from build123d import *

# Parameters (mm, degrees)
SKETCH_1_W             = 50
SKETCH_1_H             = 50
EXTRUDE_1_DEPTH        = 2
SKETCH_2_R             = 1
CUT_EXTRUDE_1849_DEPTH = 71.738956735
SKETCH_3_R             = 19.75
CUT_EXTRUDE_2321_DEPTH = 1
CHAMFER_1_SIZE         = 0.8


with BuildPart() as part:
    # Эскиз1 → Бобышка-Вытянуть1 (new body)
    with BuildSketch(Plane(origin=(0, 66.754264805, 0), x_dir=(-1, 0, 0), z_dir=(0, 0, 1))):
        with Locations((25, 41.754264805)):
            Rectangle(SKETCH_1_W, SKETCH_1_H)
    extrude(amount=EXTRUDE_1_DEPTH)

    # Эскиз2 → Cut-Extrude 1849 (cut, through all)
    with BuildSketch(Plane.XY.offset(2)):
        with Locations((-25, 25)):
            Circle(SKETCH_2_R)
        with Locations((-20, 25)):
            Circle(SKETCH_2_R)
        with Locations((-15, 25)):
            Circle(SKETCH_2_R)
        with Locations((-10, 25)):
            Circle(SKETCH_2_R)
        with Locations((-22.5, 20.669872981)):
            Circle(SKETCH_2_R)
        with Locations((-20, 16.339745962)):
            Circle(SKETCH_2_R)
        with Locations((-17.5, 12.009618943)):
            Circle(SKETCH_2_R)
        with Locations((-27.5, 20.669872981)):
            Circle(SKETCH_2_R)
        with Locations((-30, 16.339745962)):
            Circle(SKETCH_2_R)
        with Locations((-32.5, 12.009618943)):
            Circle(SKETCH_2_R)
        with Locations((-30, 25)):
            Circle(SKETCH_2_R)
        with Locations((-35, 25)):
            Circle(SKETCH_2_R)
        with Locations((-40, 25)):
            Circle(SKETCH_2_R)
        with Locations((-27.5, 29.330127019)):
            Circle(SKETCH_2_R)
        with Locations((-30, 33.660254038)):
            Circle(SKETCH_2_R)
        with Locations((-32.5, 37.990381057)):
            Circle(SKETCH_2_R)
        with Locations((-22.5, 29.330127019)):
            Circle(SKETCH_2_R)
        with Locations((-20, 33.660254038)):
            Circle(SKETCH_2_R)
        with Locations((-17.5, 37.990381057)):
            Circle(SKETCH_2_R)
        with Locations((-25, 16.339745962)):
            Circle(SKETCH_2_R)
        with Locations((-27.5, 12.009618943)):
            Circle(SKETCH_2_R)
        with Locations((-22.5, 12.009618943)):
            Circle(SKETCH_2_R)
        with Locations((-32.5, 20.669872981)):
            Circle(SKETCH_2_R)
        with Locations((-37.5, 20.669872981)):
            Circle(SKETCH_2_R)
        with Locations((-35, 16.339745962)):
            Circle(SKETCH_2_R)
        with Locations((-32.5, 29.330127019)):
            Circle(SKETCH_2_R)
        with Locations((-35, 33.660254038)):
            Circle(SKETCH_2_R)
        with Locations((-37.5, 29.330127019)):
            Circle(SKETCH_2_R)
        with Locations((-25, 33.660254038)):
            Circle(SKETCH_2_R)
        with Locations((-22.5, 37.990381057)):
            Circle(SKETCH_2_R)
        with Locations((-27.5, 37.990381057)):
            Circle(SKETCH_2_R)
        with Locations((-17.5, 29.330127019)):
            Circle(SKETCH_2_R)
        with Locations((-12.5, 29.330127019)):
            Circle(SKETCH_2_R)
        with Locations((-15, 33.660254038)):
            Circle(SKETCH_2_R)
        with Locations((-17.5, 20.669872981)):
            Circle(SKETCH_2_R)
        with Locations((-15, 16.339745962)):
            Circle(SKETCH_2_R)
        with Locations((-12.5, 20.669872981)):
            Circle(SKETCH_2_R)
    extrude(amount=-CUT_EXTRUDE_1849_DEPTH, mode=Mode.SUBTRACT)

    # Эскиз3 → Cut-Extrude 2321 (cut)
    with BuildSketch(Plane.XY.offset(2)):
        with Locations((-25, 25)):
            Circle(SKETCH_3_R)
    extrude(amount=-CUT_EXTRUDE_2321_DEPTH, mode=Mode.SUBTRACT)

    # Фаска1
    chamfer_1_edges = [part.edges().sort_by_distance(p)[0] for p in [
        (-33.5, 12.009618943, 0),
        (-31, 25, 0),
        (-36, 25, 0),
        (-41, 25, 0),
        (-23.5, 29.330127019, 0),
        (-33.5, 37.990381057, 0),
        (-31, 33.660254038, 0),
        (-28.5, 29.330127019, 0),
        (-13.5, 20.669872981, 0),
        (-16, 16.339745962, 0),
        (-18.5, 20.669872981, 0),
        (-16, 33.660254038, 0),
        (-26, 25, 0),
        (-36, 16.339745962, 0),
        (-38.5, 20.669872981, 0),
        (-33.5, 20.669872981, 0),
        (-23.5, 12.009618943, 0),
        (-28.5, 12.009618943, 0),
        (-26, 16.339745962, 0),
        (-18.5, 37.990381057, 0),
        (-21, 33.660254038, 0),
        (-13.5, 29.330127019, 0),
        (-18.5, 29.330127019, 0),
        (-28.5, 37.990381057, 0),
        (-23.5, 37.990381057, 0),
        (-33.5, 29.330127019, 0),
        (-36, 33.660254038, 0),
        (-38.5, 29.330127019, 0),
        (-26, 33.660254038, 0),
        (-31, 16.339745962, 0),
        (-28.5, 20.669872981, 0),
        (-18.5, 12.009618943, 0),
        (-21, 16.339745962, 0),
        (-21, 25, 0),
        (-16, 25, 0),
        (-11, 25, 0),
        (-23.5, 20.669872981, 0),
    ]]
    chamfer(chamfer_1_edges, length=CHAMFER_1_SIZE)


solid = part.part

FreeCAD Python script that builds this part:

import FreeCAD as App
import Part
import Sketcher

V = App.Vector


def edges_at(feature, points):
    """Names of the edges that pass closest to the given points."""
    edges = feature.Shape.Edges
    near = lambda p: min(range(len(edges)), key=lambda i: edges[i].distToShape(Part.Vertex(*p))[0])
    return sorted({f"Edge{near(p) + 1}" for p in points})

doc = App.newDocument("Part")
body = doc.addObject("PartDesign::Body", "Body")

sketch1 = body.newObject("Sketcher::SketchObject", "Sketch")
sketch1.AttachmentSupport = (doc.getObject("XY_Plane"), [""])
sketch1.MapMode = "FlatFace"
sketch1.addGeometry(Part.LineSegment(V(0, 0, 0), V(0, 50, 0)), False)
sketch1.addGeometry(Part.LineSegment(V(0, 50, 0), V(-50, 50, 0)), False)
sketch1.addGeometry(Part.LineSegment(V(-50, 50, 0), V(-50, 0, 0)), False)
sketch1.addGeometry(Part.LineSegment(V(-50, 0, 0), V(0, 0, 0)), False)
sketch1.addConstraint(Sketcher.Constraint("Coincident", 0, 2, 1, 1))
sketch1.addConstraint(Sketcher.Constraint("Coincident", 1, 2, 2, 1))
sketch1.addConstraint(Sketcher.Constraint("Coincident", 2, 2, 3, 1))
sketch1.addConstraint(Sketcher.Constraint("Coincident", 3, 2, 0, 1))
sketch1.addConstraint(Sketcher.Constraint("Vertical", 0))
sketch1.addConstraint(Sketcher.Constraint("Horizontal", 1))
sketch1.addConstraint(Sketcher.Constraint("Vertical", 2))
sketch1.addConstraint(Sketcher.Constraint("Horizontal", 3))
sketch1.addConstraint(Sketcher.Constraint("Coincident", 3, 2, -1, 1))
sketch1.addConstraint(Sketcher.Constraint("Equal", 3, 0))
sketch1.addConstraint(Sketcher.Constraint("DistanceX", 1, 2, 1, 1, 50.0))
pad1 = body.newObject("PartDesign::Pad", "Pad")
pad1.Profile = sketch1
pad1.Length = 2

sketch2 = body.newObject("Sketcher::SketchObject", "Sketch001")
sketch2.AttachmentSupport = (doc.getObject("XY_Plane"), [""])
sketch2.MapMode = "FlatFace"
sketch2.AttachmentOffset = App.Placement(V(0, 0, 2), App.Rotation())
sketch2.addGeometry(Part.Circle(V(-25, 25, 0), V(0, 0, 1), 1), False)
sketch2.addGeometry(Part.Circle(V(-20, 25, 0), V(0, 0, 1), 1), False)
sketch2.addGeometry(Part.Circle(V(-15, 25, 0), V(0, 0, 1), 1), False)
sketch2.addGeometry(Part.Circle(V(-10, 25, 0), V(0, 0, 1), 1), False)
sketch2.addGeometry(Part.Circle(V(-22.5, 20.7, 0), V(0, 0, 1), 1), False)
sketch2.addGeometry(Part.Circle(V(-20, 16.3, 0), V(0, 0, 1), 1), False)
sketch2.addGeometry(Part.Circle(V(-17.5, 12, 0), V(0, 0, 1), 1), False)
sketch2.addGeometry(Part.Circle(V(-27.5, 20.7, 0), V(0, 0, 1), 1), False)
sketch2.addGeometry(Part.Circle(V(-30, 16.3, 0), V(0, 0, 1), 1), False)
sketch2.addGeometry(Part.Circle(V(-32.5, 12, 0), V(0, 0, 1), 1), False)
sketch2.addGeometry(Part.Circle(V(-30, 25, 0), V(0, 0, 1), 1), False)
sketch2.addGeometry(Part.Circle(V(-35, 25, 0), V(0, 0, 1), 1), False)
sketch2.addGeometry(Part.Circle(V(-40, 25, 0), V(0, 0, 1), 1), False)
sketch2.addGeometry(Part.Circle(V(-27.5, 29.3, 0), V(0, 0, 1), 1), False)
sketch2.addGeometry(Part.Circle(V(-30, 33.7, 0), V(0, 0, 1), 1), False)
sketch2.addGeometry(Part.Circle(V(-32.5, 38, 0), V(0, 0, 1), 1), False)
sketch2.addGeometry(Part.Circle(V(-22.5, 29.3, 0), V(0, 0, 1), 1), False)
sketch2.addGeometry(Part.Circle(V(-20, 33.7, 0), V(0, 0, 1), 1), False)
sketch2.addGeometry(Part.Circle(V(-17.5, 38, 0), V(0, 0, 1), 1), False)
sketch2.addGeometry(Part.Circle(V(-25, 16.3, 0), V(0, 0, 1), 1), False)
sketch2.addGeometry(Part.Circle(V(-27.5, 12, 0), V(0, 0, 1), 1), False)
sketch2.addGeometry(Part.Circle(V(-22.5, 12, 0), V(0, 0, 1), 1), False)
sketch2.addGeometry(Part.Circle(V(-32.5, 20.7, 0), V(0, 0, 1), 1), False)
sketch2.addGeometry(Part.Circle(V(-37.5, 20.7, 0), V(0, 0, 1), 1), False)
sketch2.addGeometry(Part.Circle(V(-35, 16.3, 0), V(0, 0, 1), 1), False)
sketch2.addGeometry(Part.Circle(V(-32.5, 29.3, 0), V(0, 0, 1), 1), False)
sketch2.addGeometry(Part.Circle(V(-35, 33.7, 0), V(0, 0, 1), 1), False)
sketch2.addGeometry(Part.Circle(V(-37.5, 29.3, 0), V(0, 0, 1), 1), False)
sketch2.addGeometry(Part.Circle(V(-25, 33.7, 0), V(0, 0, 1), 1), False)
sketch2.addGeometry(Part.Circle(V(-22.5, 38, 0), V(0, 0, 1), 1), False)
sketch2.addGeometry(Part.Circle(V(-27.5, 38, 0), V(0, 0, 1), 1), False)
sketch2.addGeometry(Part.Circle(V(-17.5, 29.3, 0), V(0, 0, 1), 1), False)
sketch2.addGeometry(Part.Circle(V(-12.5, 29.3, 0), V(0, 0, 1), 1), False)
sketch2.addGeometry(Part.Circle(V(-15, 33.7, 0), V(0, 0, 1), 1), False)
sketch2.addGeometry(Part.Circle(V(-17.5, 20.7, 0), V(0, 0, 1), 1), False)
sketch2.addGeometry(Part.Circle(V(-15, 16.3, 0), V(0, 0, 1), 1), False)
sketch2.addGeometry(Part.Circle(V(-12.5, 20.7, 0), V(0, 0, 1), 1), False)
sketch2.addConstraint(Sketcher.Constraint("Equal", 0, 1))
sketch2.addConstraint(Sketcher.Constraint("Equal", 1, 2))
sketch2.addConstraint(Sketcher.Constraint("Equal", 2, 3))
sketch2.addConstraint(Sketcher.Constraint("Equal", 3, 4))
sketch2.addConstraint(Sketcher.Constraint("Equal", 4, 5))
sketch2.addConstraint(Sketcher.Constraint("Equal", 5, 6))
sketch2.addConstraint(Sketcher.Constraint("Equal", 6, 7))
sketch2.addConstraint(Sketcher.Constraint("Equal", 7, 8))
sketch2.addConstraint(Sketcher.Constraint("Equal", 8, 9))
sketch2.addConstraint(Sketcher.Constraint("Equal", 9, 10))
sketch2.addConstraint(Sketcher.Constraint("Equal", 10, 11))
sketch2.addConstraint(Sketcher.Constraint("Equal", 11, 12))
sketch2.addConstraint(Sketcher.Constraint("Equal", 12, 13))
sketch2.addConstraint(Sketcher.Constraint("Equal", 13, 14))
sketch2.addConstraint(Sketcher.Constraint("Equal", 14, 15))
sketch2.addConstraint(Sketcher.Constraint("Equal", 15, 16))
sketch2.addConstraint(Sketcher.Constraint("Equal", 16, 17))
sketch2.addConstraint(Sketcher.Constraint("Equal", 17, 18))
sketch2.addConstraint(Sketcher.Constraint("Equal", 18, 19))
sketch2.addConstraint(Sketcher.Constraint("Equal", 19, 20))
sketch2.addConstraint(Sketcher.Constraint("Equal", 20, 21))
sketch2.addConstraint(Sketcher.Constraint("Equal", 21, 22))
sketch2.addConstraint(Sketcher.Constraint("Equal", 22, 23))
sketch2.addConstraint(Sketcher.Constraint("Equal", 23, 24))
sketch2.addConstraint(Sketcher.Constraint("Equal", 24, 25))
sketch2.addConstraint(Sketcher.Constraint("Equal", 25, 26))
sketch2.addConstraint(Sketcher.Constraint("Equal", 26, 27))
sketch2.addConstraint(Sketcher.Constraint("Equal", 27, 28))
sketch2.addConstraint(Sketcher.Constraint("Equal", 28, 29))
sketch2.addConstraint(Sketcher.Constraint("Equal", 29, 30))
sketch2.addConstraint(Sketcher.Constraint("Equal", 30, 31))
sketch2.addConstraint(Sketcher.Constraint("Equal", 31, 32))
sketch2.addConstraint(Sketcher.Constraint("Equal", 32, 33))
sketch2.addConstraint(Sketcher.Constraint("Equal", 33, 34))
sketch2.addConstraint(Sketcher.Constraint("Equal", 34, 35))
sketch2.addConstraint(Sketcher.Constraint("Equal", 35, 36))
sketch2.addConstraint(Sketcher.Constraint("Horizontal", 0, 3, 1, 3))
sketch2.addConstraint(Sketcher.Constraint("Horizontal", 1, 3, 2, 3))
sketch2.addConstraint(Sketcher.Constraint("Horizontal", 2, 3, 3, 3))
sketch2.addConstraint(Sketcher.Constraint("Horizontal", 4, 3, 7, 3))
sketch2.addConstraint(Sketcher.Constraint("Horizontal", 5, 3, 8, 3))
sketch2.addConstraint(Sketcher.Constraint("Horizontal", 6, 3, 9, 3))
sketch2.addConstraint(Sketcher.Constraint("Horizontal", 3, 3, 10, 3))
sketch2.addConstraint(Sketcher.Constraint("Horizontal", 10, 3, 11, 3))
sketch2.addConstraint(Sketcher.Constraint("Horizontal", 11, 3, 12, 3))
sketch2.addConstraint(Sketcher.Constraint("Horizontal", 13, 3, 16, 3))
sketch2.addConstraint(Sketcher.Constraint("Horizontal", 14, 3, 17, 3))
sketch2.addConstraint(Sketcher.Constraint("Horizontal", 15, 3, 18, 3))
sketch2.addConstraint(Sketcher.Constraint("Horizontal", 8, 3, 19, 3))
sketch2.addConstraint(Sketcher.Constraint("Horizontal", 9, 3, 20, 3))
sketch2.addConstraint(Sketcher.Constraint("Horizontal", 20, 3, 21, 3))
sketch2.addConstraint(Sketcher.Constraint("Horizontal", 7, 3, 22, 3))
sketch2.addConstraint(Sketcher.Constraint("Horizontal", 22, 3, 23, 3))
sketch2.addConstraint(Sketcher.Constraint("Horizontal", 19, 3, 24, 3))
sketch2.addConstraint(Sketcher.Constraint("Horizontal", 16, 3, 25, 3))
sketch2.addConstraint(Sketcher.Constraint("Horizontal", 17, 3, 26, 3))
sketch2.addConstraint(Sketcher.Constraint("Horizontal", 25, 3, 27, 3))
sketch2.addConstraint(Sketcher.Constraint("Horizontal", 26, 3, 28, 3))
sketch2.addConstraint(Sketcher.Constraint("Horizontal", 18, 3, 29, 3))
sketch2.addConstraint(Sketcher.Constraint("Horizontal", 29, 3, 30, 3))
sketch2.addConstraint(Sketcher.Constraint("Horizontal", 27, 3, 31, 3))
sketch2.addConstraint(Sketcher.Constraint("Horizontal", 31, 3, 32, 3))
sketch2.addConstraint(Sketcher.Constraint("Horizontal", 28, 3, 33, 3))
sketch2.addConstraint(Sketcher.Constraint("Horizontal", 23, 3, 34, 3))
sketch2.addConstraint(Sketcher.Constraint("Horizontal", 24, 3, 35, 3))
sketch2.addConstraint(Sketcher.Constraint("Horizontal", 34, 3, 36, 3))
sketch2.addConstraint(Sketcher.Constraint("Vertical", 1, 3, 5, 3))
sketch2.addConstraint(Sketcher.Constraint("Vertical", 8, 3, 10, 3))
sketch2.addConstraint(Sketcher.Constraint("Vertical", 7, 3, 13, 3))
sketch2.addConstraint(Sketcher.Constraint("Vertical", 10, 3, 14, 3))
sketch2.addConstraint(Sketcher.Constraint("Vertical", 9, 3, 15, 3))
sketch2.addConstraint(Sketcher.Constraint("Vertical", 4, 3, 16, 3))
sketch2.addConstraint(Sketcher.Constraint("Vertical", 5, 3, 17, 3))
sketch2.addConstraint(Sketcher.Constraint("Vertical", 6, 3, 18, 3))
sketch2.addConstraint(Sketcher.Constraint("Vertical", 0, 3, 19, 3))
sketch2.addConstraint(Sketcher.Constraint("Vertical", 13, 3, 20, 3))
sketch2.addConstraint(Sketcher.Constraint("Vertical", 16, 3, 21, 3))
sketch2.addConstraint(Sketcher.Constraint("Vertical", 15, 3, 22, 3))
sketch2.addConstraint(Sketcher.Constraint("Vertical", 11, 3, 24, 3))
sketch2.addConstraint(Sketcher.Constraint("Vertical", 22, 3, 25, 3))
sketch2.addConstraint(Sketcher.Constraint("Vertical", 24, 3, 26, 3))
sketch2.addConstraint(Sketcher.Constraint("Vertical", 23, 3, 27, 3))
sketch2.addConstraint(Sketcher.Constraint("Vertical", 19, 3, 28, 3))
sketch2.addConstraint(Sketcher.Constraint("Vertical", 21, 3, 29, 3))
sketch2.addConstraint(Sketcher.Constraint("Vertical", 20, 3, 30, 3))
sketch2.addConstraint(Sketcher.Constraint("Vertical", 18, 3, 31, 3))
sketch2.addConstraint(Sketcher.Constraint("Vertical", 2, 3, 33, 3))
sketch2.addConstraint(Sketcher.Constraint("Vertical", 31, 3, 34, 3))
sketch2.addConstraint(Sketcher.Constraint("Vertical", 33, 3, 35, 3))
sketch2.addConstraint(Sketcher.Constraint("Vertical", 32, 3, 36, 3))
sketch2.addConstraint(Sketcher.Constraint("Diameter", 0, 2.0))
sketch2.addConstraint(Sketcher.Constraint("DistanceX", 0, 3, -1, 1, 25.0))
sketch2.addConstraint(Sketcher.Constraint("DistanceY", -1, 1, 0, 3, 25.0))
sketch2.addConstraint(Sketcher.Constraint("DistanceX", 1, 3, -1, 1, 20.0))
sketch2.addConstraint(Sketcher.Constraint("DistanceX", 2, 3, -1, 1, 15.0))
sketch2.addConstraint(Sketcher.Constraint("DistanceX", 3, 3, -1, 1, 10.0))
sketch2.addConstraint(Sketcher.Constraint("DistanceX", 8, 3, -1, 1, 30.0))
sketch2.addConstraint(Sketcher.Constraint("DistanceX", 11, 3, -1, 1, 35.0))
sketch2.addConstraint(Sketcher.Constraint("DistanceX", 12, 3, -1, 1, 40.0))
sketch2.addConstraint(Sketcher.Constraint("DistanceX", 4, 3, 6, 3, 5.0))
sketch2.addConstraint(Sketcher.Constraint("DistanceX", 7, 3, 4, 3, 5.0))
sketch2.addConstraint(Sketcher.Constraint("DistanceX", 9, 3, 7, 3, 5.0))
sketch2.addConstraint(Sketcher.Constraint("DistanceX", 23, 3, 22, 3, 5.0))
sketch2.addConstraint(Sketcher.Constraint("DistanceX", 31, 3, 32, 3, 5.0))
sketch2.addConstraint(Sketcher.Constraint("DistanceX", 4, 3, -1, 1, 22.5))
sketch2.addConstraint(Sketcher.Constraint("DistanceY", -1, 1, 6, 3, 12.009619))
sketch2.addConstraint(Sketcher.Constraint("DistanceY", -1, 1, 15, 3, 37.990381))
sketch2.addConstraint(Sketcher.Constraint("DistanceY", -1, 1, 4, 3, 20.669873))
sketch2.addConstraint(Sketcher.Constraint("DistanceY", -1, 1, 5, 3, 16.339746))
sketch2.addConstraint(Sketcher.Constraint("DistanceY", -1, 1, 13, 3, 29.330127))
sketch2.addConstraint(Sketcher.Constraint("DistanceY", -1, 1, 14, 3, 33.660254))
pocket1 = body.newObject("PartDesign::Pocket", "Pocket")
pocket1.Profile = sketch2
pocket1.Type = "ThroughAll"

sketch3 = body.newObject("Sketcher::SketchObject", "Sketch002")
sketch3.AttachmentSupport = (doc.getObject("XY_Plane"), [""])
sketch3.MapMode = "FlatFace"
sketch3.AttachmentOffset = App.Placement(V(0, 0, 2), App.Rotation())
sketch3.addGeometry(Part.Circle(V(-25, 25, 0), V(0, 0, 1), 20), False)
sketch3.addConstraint(Sketcher.Constraint("Diameter", 0, 39.5))
sketch3.addConstraint(Sketcher.Constraint("DistanceX", 0, 3, -1, 1, 25.0))
sketch3.addConstraint(Sketcher.Constraint("DistanceY", -1, 1, 0, 3, 25.0))
pocket2 = body.newObject("PartDesign::Pocket", "Pocket001")
pocket2.Profile = sketch3
pocket2.Length = 1
doc.recompute()

chamfer = body.newObject("PartDesign::Chamfer", "Chamfer")
chamfer.Base = (pocket2, edges_at(pocket2, [
    (-33.5, 12.01, 0),
    (-31, 25, 0),
    (-36, 25, 0),
    (-41, 25, 0),
    (-23.5, 29.33, 0),
    (-33.5, 37.99, 0),
    (-31, 33.66, 0),
    (-28.5, 29.33, 0),
    (-13.5, 20.67, 0),
    (-16, 16.34, 0),
    (-18.5, 20.67, 0),
    (-16, 33.66, 0),
    (-26, 25, 0),
    (-36, 16.34, 0),
    (-38.5, 20.67, 0),
    (-33.5, 20.67, 0),
    (-23.5, 12.01, 0),
    (-28.5, 12.01, 0),
    (-26, 16.34, 0),
    (-18.5, 37.99, 0),
    (-21, 33.66, 0),
    (-13.5, 29.33, 0),
    (-18.5, 29.33, 0),
    (-28.5, 37.99, 0),
    (-23.5, 37.99, 0),
    (-33.5, 29.33, 0),
    (-36, 33.66, 0),
    (-38.5, 29.33, 0),
    (-26, 33.66, 0),
    (-31, 16.34, 0),
    (-28.5, 20.67, 0),
    (-18.5, 12.01, 0),
    (-21, 16.34, 0),
    (-21, 25, 0),
    (-16, 25, 0),
    (-11, 25, 0),
    (-23.5, 20.67, 0),
]))
chamfer.Size = 0.8

doc.recompute()
